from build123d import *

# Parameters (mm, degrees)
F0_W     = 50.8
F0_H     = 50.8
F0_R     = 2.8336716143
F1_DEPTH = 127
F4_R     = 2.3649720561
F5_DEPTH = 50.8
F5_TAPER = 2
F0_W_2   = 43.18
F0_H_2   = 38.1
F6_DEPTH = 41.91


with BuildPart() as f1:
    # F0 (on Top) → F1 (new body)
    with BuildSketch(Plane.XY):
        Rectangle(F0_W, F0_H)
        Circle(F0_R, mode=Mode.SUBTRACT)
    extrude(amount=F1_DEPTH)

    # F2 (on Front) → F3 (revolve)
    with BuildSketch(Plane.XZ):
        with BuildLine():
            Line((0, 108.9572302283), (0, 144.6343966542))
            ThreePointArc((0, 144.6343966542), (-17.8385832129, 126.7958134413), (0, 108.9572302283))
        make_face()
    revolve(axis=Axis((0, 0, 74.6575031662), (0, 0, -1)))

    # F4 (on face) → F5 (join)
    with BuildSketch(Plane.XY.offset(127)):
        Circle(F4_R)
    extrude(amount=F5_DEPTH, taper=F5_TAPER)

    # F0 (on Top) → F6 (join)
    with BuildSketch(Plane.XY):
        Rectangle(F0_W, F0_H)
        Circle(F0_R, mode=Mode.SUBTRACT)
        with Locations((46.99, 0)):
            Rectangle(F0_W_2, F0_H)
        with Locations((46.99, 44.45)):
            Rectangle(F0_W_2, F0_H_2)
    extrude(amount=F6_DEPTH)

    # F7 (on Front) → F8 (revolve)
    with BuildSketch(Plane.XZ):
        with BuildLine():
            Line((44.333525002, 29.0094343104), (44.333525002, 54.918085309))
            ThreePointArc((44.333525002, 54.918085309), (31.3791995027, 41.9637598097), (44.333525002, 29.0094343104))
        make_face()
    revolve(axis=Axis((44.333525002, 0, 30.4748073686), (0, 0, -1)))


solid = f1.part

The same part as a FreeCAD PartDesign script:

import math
import FreeCAD as App
import Part
import Sketcher

V = App.Vector
Q = App.Units.Quantity


def add_polygon(sketch, points):
    """Adds a closed chain of lines whose ends are joined by coincident constraints."""
    first, n = sketch.GeometryCount, len(points)
    for a, b in zip(points, points[1:] + points[:1]):
        sketch.addGeometry(Part.LineSegment(App.Vector(*a, 0), App.Vector(*b, 0)), False)
    for i in range(n):
        sketch.addConstraint(Sketcher.Constraint("Coincident", first + i, 2, first + (i + 1) % n, 1))

doc = App.newDocument("Part")
body = doc.addObject("PartDesign::Body", "Body")

sketch1 = body.newObject("Sketcher::SketchObject", "Sketch")
sketch1.AttachmentSupport = (doc.getObject("XY_Plane"), [""])
sketch1.MapMode = "FlatFace"
add_polygon(sketch1, [(-25.4, 25.4), (-25.4, -25.4), (25.4, -25.4), (25.4, 25.4)])
sketch1.addGeometry(Part.Circle(V(0, 0, 0), V(0, 0, 1), 2.8), False)
sketch1.addConstraint([
    Sketcher.Constraint("Vertical", 0),
    Sketcher.Constraint("Horizontal", 1),
    Sketcher.Constraint("Vertical", 2),
    Sketcher.Constraint("Horizontal", 3),
    Sketcher.Constraint("Coincident", 4, 3, -1, 1),
    Sketcher.Constraint("Symmetric", 0, 2, 2, 2, -1, 1),
    Sketcher.Constraint("Equal", 3, 0),
    Sketcher.Constraint("DistanceX", 1, 1, 1, 2, Q("2 in")),
    Sketcher.Constraint("Diameter", 4, 5.667343),
])
pad1 = body.newObject("PartDesign::Pad", "Pad")
pad1.Profile = sketch1
pad1.Length = Q("5 in")

sketch2 = body.newObject("Sketcher::SketchObject", "Sketch001")
sketch2.AttachmentSupport = (doc.getObject("XZ_Plane"), [""])
sketch2.MapMode = "FlatFace"
sketch2.addGeometry([
    Part.LineSegment(V(0, 109, 0), V(0, 145, 0)),
    Part.ArcOfCircle(Part.Circle(V(0, 127, 0), V(0, 0, 1), 18), math.radians(90), math.radians(270)),
], False)
sketch2.addConstraint([
    Sketcher.Constraint("Coincident", 0, 1, 1, 2),
    Sketcher.Constraint("Coincident", 1, 1, 0, 2),
    Sketcher.Constraint("Vertical", 0),
    Sketcher.Constraint("PointOnObject", 1, 3, -2),
    Sketcher.Constraint("PointOnObject", 0, 1, -2),
    Sketcher.Constraint("Radius", 1, 17.838583),
    Sketcher.Constraint("DistanceY", -1, 1, 0, 1, 108.95723),
])
revolution = body.newObject("PartDesign::Revolution", "Revolution")
revolution.Profile = sketch2
revolution.ReferenceAxis = (sketch2, ["V_Axis"])
revolution.Angle = 360

sketch3 = body.newObject("Sketcher::SketchObject", "Sketch002")
sketch3.AttachmentSupport = (doc.getObject("XY_Plane"), [""])
sketch3.MapMode = "FlatFace"
sketch3.AttachmentOffset = App.Placement(V(0, 0, 5 * 25.4), App.Rotation())
sketch3.addGeometry(Part.Circle(V(0, 0, 0), V(0, 0, 1), 2.4), False)
sketch3.addConstraint([
    Sketcher.Constraint("Coincident", 0, 3, -1, 1),
    Sketcher.Constraint("Diameter", 0, 4.729944),
])
pad2 = body.newObject("PartDesign::Pad", "Pad001")
pad2.Profile = sketch3
pad2.Length = Q("2 in")
pad2.TaperAngle = -2

sketch4 = body.newObject("Sketcher::SketchObject", "Sketch003")
sketch4.AttachmentSupport = (doc.getObject("XY_Plane"), [""])
sketch4.MapMode = "FlatFace"
add_polygon(sketch4, [(-25.4, 25.4), (-25.4, -25.4), (68.6, -25.4), (68.6, 63.5), (25.4, 63.5), (25.4, 25.4)])
sketch4.addGeometry(Part.Circle(V(0, 0, 0), V(0, 0, 1), 2.8), False)
sketch4.addConstraint([
    Sketcher.Constraint("Vertical", 0),
    Sketcher.Constraint("Horizontal", 1),
    Sketcher.Constraint("Vertical", 2),
    Sketcher.Constraint("Horizontal", 3),
    Sketcher.Constraint("Vertical", 4),
    Sketcher.Constraint("Horizontal", 5),
    Sketcher.Constraint("Coincident", 6, 3, -1, 1),
    Sketcher.Constraint("Symmetric", 0, 2, 4, 2, -1, 1),
    Sketcher.Constraint("Equal", 5, 0),
    Sketcher.Constraint("DistanceX", 5, 2, 5, 1, Q("2 in")),
    Sketcher.Constraint("DistanceX", 1, 1, 1, 2, Q("3.7 in")),
    Sketcher.Constraint("DistanceY", 2, 1, 2, 2, Q("3.5 in")),
    Sketcher.Constraint("Diameter", 6, 5.667343),
])
pad3 = body.newObject("PartDesign::Pad", "Pad002")
pad3.Profile = sketch4
pad3.Length = Q("1.65 in")

sketch5 = body.newObject("Sketcher::SketchObject", "Sketch004")
sketch5.AttachmentSupport = (doc.getObject("XZ_Plane"), [""])
sketch5.MapMode = "FlatFace"
sketch5.addGeometry([
    Part.LineSegment(V(44, 29, 0), V(44, 55, 0)),
    Part.ArcOfCircle(Part.Circle(V(44, 42, 0), V(0, 0, 1), 13), math.radians(90), math.radians(270)),
], False)
sketch5.addGeometry(Part.LineSegment(V(44, 55, 0), V(44, 29, 0)), True)
sketch5.addConstraint([
    Sketcher.Constraint("Coincident", 0, 1, 1, 2),
    Sketcher.Constraint("Coincident", 1, 1, 0, 2),
    Sketcher.Constraint("Vertical", 0),
    Sketcher.Constraint("Vertical", 2),
    Sketcher.Constraint("Coincident", 2, 1, 1, 1),
    Sketcher.Constraint("Vertical", 1, 3, 0, 1),
    Sketcher.Constraint("Equal", 0, 2),
    Sketcher.Constraint("Radius", 1, 12.954325),
    Sketcher.Constraint("DistanceY", -1, 1, 1, 3, 41.96376),
    Sketcher.Constraint("DistanceX", -1, 1, 1, 3, 44.333525),
])
revolution2 = body.newObject("PartDesign::Revolution", "Revolution001")
revolution2.Profile = sketch5
revolution2.ReferenceAxis = (sketch5, ["Axis0"])
revolution2.Angle = 360

doc.recompute()
